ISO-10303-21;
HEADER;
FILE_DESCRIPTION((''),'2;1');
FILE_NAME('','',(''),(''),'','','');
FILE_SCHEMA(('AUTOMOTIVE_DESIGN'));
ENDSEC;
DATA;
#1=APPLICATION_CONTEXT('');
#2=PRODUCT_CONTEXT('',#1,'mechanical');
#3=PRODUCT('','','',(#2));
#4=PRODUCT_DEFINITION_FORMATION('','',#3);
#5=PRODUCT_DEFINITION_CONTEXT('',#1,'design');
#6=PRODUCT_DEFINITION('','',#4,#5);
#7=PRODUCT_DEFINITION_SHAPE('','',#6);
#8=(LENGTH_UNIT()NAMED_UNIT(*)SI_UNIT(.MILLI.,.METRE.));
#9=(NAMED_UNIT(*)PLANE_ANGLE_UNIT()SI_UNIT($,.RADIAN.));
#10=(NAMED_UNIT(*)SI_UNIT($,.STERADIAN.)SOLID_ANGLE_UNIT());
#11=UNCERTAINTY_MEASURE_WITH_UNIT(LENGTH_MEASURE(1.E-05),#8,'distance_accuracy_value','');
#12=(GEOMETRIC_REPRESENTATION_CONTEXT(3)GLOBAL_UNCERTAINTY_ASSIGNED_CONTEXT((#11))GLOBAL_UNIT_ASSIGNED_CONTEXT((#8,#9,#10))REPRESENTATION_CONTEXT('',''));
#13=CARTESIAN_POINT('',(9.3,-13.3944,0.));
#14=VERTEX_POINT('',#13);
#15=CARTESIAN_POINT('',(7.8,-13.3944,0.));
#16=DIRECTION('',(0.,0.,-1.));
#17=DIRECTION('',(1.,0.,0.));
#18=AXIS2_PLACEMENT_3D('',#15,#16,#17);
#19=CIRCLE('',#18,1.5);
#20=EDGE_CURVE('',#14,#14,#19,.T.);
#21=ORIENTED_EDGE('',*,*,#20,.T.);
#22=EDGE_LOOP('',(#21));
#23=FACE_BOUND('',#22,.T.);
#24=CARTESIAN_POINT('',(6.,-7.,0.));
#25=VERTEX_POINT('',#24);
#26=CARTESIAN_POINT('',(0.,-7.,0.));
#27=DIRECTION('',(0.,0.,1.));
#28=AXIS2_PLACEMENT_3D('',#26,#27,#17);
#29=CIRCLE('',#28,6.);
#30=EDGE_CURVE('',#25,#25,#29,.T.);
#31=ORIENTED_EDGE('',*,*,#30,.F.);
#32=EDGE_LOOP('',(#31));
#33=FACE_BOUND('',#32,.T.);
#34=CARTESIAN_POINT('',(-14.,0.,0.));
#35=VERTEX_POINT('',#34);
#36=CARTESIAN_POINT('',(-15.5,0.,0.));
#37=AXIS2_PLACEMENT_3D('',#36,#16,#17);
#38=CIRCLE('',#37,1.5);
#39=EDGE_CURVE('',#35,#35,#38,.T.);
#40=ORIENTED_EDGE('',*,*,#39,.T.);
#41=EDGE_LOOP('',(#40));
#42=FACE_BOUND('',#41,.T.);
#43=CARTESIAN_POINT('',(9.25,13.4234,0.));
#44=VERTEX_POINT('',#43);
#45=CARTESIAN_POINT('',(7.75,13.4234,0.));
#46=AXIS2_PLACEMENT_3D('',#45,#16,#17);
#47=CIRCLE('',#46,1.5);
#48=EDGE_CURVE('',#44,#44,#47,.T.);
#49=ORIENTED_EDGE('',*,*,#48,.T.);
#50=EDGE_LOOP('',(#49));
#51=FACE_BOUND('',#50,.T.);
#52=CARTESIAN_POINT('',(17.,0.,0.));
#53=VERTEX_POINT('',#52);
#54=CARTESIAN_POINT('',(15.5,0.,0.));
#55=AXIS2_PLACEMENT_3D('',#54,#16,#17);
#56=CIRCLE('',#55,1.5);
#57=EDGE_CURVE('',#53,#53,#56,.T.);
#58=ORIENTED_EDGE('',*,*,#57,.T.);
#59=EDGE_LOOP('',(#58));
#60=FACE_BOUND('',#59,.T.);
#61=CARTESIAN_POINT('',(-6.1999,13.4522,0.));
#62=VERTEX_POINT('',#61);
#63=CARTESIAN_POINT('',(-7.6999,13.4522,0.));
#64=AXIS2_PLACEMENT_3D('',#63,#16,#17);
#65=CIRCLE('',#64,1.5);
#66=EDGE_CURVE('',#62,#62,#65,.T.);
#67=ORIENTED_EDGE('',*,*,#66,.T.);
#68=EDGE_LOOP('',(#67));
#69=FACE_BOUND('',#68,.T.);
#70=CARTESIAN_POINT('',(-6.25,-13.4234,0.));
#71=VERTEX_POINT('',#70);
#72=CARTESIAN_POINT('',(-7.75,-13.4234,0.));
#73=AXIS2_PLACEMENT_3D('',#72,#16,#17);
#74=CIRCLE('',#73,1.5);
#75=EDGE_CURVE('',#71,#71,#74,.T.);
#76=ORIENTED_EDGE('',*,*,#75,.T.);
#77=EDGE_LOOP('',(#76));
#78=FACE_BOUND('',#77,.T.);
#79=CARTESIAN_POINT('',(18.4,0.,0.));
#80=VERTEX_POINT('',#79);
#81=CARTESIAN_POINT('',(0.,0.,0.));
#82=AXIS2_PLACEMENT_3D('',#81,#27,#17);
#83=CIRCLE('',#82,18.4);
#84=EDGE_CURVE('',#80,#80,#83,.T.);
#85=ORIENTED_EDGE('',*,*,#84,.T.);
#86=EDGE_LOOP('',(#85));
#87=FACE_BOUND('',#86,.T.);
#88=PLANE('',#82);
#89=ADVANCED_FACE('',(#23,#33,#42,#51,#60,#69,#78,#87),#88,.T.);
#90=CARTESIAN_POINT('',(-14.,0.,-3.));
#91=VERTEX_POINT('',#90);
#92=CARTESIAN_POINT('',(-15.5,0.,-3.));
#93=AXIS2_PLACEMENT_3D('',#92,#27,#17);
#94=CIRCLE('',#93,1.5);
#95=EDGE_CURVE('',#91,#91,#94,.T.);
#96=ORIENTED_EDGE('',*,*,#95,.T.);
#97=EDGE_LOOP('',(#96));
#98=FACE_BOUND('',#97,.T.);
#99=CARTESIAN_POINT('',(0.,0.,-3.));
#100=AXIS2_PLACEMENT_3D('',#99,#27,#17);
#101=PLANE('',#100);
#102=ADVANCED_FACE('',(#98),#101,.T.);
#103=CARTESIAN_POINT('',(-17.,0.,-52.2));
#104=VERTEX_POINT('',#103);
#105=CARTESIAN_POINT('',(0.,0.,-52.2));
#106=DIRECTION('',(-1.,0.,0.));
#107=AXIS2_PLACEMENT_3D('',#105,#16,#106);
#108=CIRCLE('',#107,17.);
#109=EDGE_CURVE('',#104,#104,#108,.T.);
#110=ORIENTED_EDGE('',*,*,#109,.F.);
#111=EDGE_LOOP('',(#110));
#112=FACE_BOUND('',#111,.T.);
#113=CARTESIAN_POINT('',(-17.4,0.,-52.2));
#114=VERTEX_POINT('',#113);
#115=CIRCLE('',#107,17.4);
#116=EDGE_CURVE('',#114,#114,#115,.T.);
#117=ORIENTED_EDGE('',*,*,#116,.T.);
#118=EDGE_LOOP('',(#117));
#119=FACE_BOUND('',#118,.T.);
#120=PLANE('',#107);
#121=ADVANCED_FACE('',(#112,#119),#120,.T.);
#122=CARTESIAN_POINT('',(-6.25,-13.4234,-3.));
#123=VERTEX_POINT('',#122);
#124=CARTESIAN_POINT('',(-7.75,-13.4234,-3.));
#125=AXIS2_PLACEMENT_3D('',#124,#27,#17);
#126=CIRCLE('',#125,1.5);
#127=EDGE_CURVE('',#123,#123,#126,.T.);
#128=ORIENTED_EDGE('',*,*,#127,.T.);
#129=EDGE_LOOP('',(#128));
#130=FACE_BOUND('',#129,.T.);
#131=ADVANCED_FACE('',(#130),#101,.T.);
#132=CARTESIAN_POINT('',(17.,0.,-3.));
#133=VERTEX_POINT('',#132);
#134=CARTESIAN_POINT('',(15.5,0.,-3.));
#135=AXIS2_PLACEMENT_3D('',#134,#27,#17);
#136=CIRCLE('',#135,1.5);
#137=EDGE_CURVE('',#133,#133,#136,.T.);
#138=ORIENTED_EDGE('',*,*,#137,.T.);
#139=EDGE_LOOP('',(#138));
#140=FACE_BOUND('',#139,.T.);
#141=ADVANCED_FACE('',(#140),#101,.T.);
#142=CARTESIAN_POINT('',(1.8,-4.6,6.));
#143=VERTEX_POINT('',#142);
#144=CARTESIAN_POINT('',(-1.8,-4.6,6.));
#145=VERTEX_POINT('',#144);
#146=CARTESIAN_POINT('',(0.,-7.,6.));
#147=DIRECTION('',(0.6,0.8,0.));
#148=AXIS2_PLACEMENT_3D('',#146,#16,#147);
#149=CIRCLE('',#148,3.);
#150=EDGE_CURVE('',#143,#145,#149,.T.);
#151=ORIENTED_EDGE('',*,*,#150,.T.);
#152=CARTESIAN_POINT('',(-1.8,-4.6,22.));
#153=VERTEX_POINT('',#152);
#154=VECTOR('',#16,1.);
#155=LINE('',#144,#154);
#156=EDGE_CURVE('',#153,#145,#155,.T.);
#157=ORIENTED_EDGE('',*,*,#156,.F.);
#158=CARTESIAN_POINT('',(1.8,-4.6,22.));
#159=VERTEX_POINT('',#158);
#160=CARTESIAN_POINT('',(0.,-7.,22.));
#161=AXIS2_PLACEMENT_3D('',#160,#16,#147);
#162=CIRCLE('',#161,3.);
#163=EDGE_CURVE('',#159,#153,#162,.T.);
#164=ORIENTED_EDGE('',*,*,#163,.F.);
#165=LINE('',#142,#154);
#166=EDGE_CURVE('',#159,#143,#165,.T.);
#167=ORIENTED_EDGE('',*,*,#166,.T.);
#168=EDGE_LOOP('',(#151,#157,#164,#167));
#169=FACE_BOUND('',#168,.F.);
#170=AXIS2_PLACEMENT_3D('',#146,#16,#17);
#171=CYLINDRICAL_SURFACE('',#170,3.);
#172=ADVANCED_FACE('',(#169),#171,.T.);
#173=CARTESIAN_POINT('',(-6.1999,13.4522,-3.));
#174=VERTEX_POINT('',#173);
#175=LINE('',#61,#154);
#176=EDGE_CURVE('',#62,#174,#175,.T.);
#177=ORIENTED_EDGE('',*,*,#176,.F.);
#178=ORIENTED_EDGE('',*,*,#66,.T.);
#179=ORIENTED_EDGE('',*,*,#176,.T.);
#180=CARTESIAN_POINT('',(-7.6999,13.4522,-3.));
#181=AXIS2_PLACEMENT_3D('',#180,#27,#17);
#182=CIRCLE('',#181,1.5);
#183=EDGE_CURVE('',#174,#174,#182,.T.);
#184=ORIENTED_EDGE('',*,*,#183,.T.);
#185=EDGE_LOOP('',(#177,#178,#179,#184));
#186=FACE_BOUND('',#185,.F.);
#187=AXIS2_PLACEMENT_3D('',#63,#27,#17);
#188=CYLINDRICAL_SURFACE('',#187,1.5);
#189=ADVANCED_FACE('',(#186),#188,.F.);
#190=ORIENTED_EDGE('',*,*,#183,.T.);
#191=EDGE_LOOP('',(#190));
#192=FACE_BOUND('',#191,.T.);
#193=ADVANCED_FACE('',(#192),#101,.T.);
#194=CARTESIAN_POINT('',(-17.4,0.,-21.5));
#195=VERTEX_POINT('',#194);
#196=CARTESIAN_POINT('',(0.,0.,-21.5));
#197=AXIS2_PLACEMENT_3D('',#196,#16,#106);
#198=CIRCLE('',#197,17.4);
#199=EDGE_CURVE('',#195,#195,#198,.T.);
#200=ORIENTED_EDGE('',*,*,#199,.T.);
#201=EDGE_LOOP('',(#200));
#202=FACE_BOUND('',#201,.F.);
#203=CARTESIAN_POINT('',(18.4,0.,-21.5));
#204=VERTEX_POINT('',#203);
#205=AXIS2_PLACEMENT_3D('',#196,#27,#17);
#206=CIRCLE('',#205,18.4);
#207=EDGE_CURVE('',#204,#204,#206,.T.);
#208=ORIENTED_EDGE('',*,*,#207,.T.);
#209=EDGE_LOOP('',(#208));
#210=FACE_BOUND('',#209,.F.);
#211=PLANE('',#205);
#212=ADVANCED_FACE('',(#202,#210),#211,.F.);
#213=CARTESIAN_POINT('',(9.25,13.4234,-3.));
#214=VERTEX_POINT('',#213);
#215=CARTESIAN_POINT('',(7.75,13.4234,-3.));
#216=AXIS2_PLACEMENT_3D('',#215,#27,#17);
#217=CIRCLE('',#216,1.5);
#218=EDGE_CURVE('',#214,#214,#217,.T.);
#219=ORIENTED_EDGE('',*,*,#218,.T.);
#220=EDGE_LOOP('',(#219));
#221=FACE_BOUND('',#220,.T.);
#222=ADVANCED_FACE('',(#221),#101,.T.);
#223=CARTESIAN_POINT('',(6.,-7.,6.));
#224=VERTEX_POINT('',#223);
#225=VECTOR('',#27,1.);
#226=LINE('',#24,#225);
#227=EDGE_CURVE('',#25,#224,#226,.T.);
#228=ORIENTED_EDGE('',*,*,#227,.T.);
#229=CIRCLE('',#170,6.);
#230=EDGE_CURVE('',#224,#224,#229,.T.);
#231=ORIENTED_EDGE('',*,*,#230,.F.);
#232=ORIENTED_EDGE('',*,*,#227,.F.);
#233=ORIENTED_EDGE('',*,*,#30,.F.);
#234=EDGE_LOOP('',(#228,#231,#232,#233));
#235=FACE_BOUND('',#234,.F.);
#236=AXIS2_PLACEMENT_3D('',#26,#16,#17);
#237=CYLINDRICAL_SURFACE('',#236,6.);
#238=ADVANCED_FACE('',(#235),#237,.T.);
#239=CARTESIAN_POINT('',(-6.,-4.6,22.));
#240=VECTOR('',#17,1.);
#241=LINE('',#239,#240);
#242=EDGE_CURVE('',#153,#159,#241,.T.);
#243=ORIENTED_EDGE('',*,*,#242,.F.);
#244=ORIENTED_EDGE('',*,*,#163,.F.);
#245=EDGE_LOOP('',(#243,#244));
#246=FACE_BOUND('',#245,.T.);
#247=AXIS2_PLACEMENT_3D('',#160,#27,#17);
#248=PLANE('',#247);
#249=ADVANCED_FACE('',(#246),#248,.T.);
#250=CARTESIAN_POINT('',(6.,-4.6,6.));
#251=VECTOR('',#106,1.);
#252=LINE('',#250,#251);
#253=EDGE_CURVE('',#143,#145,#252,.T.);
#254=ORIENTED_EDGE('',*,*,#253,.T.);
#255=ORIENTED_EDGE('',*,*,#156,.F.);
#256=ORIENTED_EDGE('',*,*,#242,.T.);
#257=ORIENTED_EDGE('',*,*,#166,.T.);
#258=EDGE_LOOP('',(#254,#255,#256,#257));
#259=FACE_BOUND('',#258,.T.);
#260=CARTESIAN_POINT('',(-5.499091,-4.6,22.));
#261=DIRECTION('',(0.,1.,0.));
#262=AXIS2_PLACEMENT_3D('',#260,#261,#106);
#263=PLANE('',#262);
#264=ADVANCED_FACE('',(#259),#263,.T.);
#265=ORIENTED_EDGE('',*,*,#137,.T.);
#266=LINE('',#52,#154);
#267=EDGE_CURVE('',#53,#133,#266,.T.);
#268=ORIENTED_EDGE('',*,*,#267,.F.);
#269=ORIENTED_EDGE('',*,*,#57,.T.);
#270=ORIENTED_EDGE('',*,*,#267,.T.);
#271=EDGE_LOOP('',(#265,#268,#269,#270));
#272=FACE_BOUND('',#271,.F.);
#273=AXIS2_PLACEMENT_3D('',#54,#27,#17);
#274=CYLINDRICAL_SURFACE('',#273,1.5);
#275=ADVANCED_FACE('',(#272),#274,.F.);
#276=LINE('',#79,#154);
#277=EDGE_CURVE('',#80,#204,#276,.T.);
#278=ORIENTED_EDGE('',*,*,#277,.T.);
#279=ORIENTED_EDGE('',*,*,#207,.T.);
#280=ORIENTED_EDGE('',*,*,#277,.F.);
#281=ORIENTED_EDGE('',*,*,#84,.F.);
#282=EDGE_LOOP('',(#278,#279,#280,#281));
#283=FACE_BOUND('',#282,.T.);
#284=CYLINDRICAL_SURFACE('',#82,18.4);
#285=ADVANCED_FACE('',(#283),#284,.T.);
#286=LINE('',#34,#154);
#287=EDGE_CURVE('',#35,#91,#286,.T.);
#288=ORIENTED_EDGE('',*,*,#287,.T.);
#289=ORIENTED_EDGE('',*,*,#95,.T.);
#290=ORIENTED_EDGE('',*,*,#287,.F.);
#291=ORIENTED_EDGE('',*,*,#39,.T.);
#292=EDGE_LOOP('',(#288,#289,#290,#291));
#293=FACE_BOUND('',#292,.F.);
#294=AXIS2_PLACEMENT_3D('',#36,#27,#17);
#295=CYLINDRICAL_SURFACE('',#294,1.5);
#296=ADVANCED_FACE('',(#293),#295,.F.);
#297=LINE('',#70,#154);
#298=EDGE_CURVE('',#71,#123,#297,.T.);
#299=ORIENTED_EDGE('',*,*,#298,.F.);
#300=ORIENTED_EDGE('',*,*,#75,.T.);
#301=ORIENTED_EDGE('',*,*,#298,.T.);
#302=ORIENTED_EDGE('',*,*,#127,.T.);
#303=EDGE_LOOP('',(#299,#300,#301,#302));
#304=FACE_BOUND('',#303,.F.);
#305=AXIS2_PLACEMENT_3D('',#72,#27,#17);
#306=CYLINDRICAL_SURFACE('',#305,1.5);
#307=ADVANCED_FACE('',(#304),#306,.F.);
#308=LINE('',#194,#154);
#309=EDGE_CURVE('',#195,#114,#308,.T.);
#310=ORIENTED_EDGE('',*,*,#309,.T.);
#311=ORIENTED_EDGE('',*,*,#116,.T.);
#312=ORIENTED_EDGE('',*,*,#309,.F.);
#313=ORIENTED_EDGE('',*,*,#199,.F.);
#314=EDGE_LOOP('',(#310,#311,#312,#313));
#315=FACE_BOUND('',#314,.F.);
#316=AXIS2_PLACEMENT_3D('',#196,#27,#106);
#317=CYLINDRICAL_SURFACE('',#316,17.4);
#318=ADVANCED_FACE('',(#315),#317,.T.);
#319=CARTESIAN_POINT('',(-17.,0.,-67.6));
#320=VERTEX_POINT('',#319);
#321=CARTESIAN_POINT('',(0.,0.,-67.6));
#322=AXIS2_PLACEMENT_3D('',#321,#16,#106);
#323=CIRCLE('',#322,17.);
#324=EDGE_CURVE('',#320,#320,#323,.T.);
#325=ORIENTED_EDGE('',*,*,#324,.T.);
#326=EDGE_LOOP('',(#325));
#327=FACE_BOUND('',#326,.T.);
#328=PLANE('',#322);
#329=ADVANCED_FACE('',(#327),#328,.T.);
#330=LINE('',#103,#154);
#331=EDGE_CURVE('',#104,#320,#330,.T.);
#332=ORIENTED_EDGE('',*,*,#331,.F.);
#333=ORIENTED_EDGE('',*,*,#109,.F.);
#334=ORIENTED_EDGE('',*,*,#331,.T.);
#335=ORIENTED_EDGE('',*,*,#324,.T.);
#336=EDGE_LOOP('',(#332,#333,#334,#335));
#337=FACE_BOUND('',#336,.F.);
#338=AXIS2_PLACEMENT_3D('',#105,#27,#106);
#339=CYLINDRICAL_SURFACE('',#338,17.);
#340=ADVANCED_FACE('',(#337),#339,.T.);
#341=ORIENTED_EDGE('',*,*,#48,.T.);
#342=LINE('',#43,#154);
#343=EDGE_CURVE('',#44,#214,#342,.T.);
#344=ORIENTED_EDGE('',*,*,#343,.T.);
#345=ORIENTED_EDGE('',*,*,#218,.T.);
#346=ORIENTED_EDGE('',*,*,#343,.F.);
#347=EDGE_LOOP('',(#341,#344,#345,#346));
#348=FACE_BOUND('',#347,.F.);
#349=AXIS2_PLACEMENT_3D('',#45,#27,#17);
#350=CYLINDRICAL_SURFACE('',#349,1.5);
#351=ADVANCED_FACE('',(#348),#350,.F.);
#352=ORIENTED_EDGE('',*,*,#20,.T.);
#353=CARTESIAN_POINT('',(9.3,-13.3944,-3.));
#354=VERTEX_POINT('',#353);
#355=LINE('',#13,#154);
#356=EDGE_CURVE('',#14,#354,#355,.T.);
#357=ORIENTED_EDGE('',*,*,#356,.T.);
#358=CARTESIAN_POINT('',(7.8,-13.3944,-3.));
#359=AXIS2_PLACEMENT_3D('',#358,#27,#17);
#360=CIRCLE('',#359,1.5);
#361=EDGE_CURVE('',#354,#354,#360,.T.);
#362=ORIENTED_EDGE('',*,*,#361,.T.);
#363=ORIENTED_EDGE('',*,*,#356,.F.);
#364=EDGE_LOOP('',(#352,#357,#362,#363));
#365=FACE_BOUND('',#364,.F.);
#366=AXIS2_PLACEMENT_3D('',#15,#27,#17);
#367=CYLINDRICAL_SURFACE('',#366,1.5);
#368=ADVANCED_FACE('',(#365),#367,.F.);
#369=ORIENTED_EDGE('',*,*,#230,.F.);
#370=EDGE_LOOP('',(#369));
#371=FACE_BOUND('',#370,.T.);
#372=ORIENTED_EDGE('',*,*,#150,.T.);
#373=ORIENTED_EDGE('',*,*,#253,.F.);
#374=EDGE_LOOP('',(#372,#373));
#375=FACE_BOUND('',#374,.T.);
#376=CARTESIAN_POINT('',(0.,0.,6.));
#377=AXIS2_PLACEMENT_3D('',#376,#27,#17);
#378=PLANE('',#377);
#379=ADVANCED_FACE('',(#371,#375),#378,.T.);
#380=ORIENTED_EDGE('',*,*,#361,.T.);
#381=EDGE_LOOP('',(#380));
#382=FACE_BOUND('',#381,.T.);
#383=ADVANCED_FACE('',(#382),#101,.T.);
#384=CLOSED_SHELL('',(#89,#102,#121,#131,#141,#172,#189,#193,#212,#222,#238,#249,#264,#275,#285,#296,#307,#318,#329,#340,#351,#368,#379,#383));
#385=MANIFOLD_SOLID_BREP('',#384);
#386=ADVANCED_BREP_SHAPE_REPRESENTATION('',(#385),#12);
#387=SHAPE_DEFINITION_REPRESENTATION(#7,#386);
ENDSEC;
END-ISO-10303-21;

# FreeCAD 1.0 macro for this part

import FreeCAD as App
import Part
import Sketcher
from FreeCAD import Vector
Q = App.Units.Quantity

doc = App.newDocument("Part")
body = doc.addObject("PartDesign::Body", "Body")

# Sketch on XY plane
sketch1 = doc.addObject("Sketcher::SketchObject", "Sketch")
body.addObject(sketch1)
sketch1.AttachmentSupport = (doc.XY_Plane, [""])
sketch1.MapMode = "FlatFace"
sketch1.addGeometry(Part.Circle(Vector(0, 0, 0), Vector(0, 0, 1), 18), False)
sketch1.addConstraint(Sketcher.Constraint("Coincident", 0, 3, -1, 1))
sketch1.addConstraint(Sketcher.Constraint("Diameter", 0, Q("36.8 mm")))
pad1 = doc.addObject("PartDesign::Pad", "Pad")
body.addObject(pad1)
pad1.Profile = sketch1
pad1.Length = 21.5
pad1.Reversed = True

# Sketch on XY plane
sketch2 = doc.addObject("Sketcher::SketchObject", "Sketch001")
body.addObject(sketch2)
sketch2.AttachmentSupport = (doc.XY_Plane, [""])
sketch2.MapMode = "FlatFace"
sketch2.AttachmentOffset = App.Placement(Vector(0, 0, -21.5), App.Rotation())
sketch2.addGeometry(Part.Circle(Vector(0, 0, 0), Vector(0, 0, 1), 17), False)
sketch2.addConstraint(Sketcher.Constraint("Coincident", 0, 3, -1, 1))
sketch2.addConstraint(Sketcher.Constraint("Diameter", 0, Q("34.8 mm")))
pad2 = doc.addObject("PartDesign::Pad", "Pad001")
body.addObject(pad2)
pad2.Profile = sketch2
pad2.Length = 30.7
pad2.Reversed = True

# Sketch on XY plane
sketch3 = doc.addObject("Sketcher::SketchObject", "Sketch002")
body.addObject(sketch3)
sketch3.AttachmentSupport = (doc.XY_Plane, [""])
sketch3.MapMode = "FlatFace"
sketch3.AttachmentOffset = App.Placement(Vector(0, 0, -52.2), App.Rotation())
sketch3.addGeometry(Part.Circle(Vector(0, 0, 0), Vector(0, 0, 1), 17), False)
sketch3.addConstraint(Sketcher.Constraint("Coincident", 0, 3, -1, 1))
sketch3.addConstraint(Sketcher.Constraint("Diameter", 0, Q("34 mm")))
pad3 = doc.addObject("PartDesign::Pad", "Pad002")
body.addObject(pad3)
pad3.Profile = sketch3
pad3.Length = 15.4
pad3.Reversed = True

# Sketch on XY plane
sketch4 = doc.addObject("Sketcher::SketchObject", "Sketch003")
body.addObject(sketch4)
sketch4.AttachmentSupport = (doc.XY_Plane, [""])
sketch4.MapMode = "FlatFace"
sketch4.addGeometry(Part.Circle(Vector(0, -7, 0), Vector(0, 0, 1), 6), False)
sketch4.addConstraint(Sketcher.Constraint("PointOnObject", 0, 3, -2))
sketch4.addConstraint(Sketcher.Constraint("Diameter", 0, Q("12 mm")))
sketch4.addConstraint(Sketcher.Constraint("DistanceY", 0, 3, -1, 1, Q("7 mm")))
pad4 = doc.addObject("PartDesign::Pad", "Pad003")
body.addObject(pad4)
pad4.Profile = sketch4
pad4.Length = 6

# Sketch on XY plane
sketch5 = doc.addObject("Sketcher::SketchObject", "Sketch004")
body.addObject(sketch5)
sketch5.AttachmentSupport = (doc.XY_Plane, [""])
sketch5.MapMode = "FlatFace"
sketch5.addGeometry(Part.Circle(Vector(-15.5, 0, 0), Vector(0, 0, 1), 1.5), False)
sketch5.addGeometry(Part.Circle(Vector(-7.7, 13.5, 0), Vector(0, 0, 1), 1.5), False)
sketch5.addGeometry(Part.Circle(Vector(-7.8, -13.4, 0), Vector(0, 0, 1), 1.5), False)
sketch5.addGeometry(Part.Circle(Vector(15.5, 0, 0), Vector(0, 0, 1), 1.5), False)
sketch5.addGeometry(Part.Circle(Vector(7.8, 13.4, 0), Vector(0, 0, 1), 1.5), False)
sketch5.addGeometry(Part.Circle(Vector(7.8, -13.4, 0), Vector(0, 0, 1), 1.5), False)
sketch5.addConstraint(Sketcher.Constraint("Equal", 0, 1))
sketch5.addConstraint(Sketcher.Constraint("Equal", 1, 2))
sketch5.addConstraint(Sketcher.Constraint("Equal", 2, 3))
sketch5.addConstraint(Sketcher.Constraint("Equal", 3, 4))
sketch5.addConstraint(Sketcher.Constraint("Equal", 4, 5))
sketch5.addConstraint(Sketcher.Constraint("Symmetric", 0, 3, 3, 3, -1, 1))
sketch5.addConstraint(Sketcher.Constraint("Symmetric", 2, 3, 4, 3, -1, 1))
sketch5.addConstraint(Sketcher.Constraint("PointOnObject", 0, 3, -1))
sketch5.addConstraint(Sketcher.Constraint("Diameter", 0, Q("3 mm")))
sketch5.addConstraint(Sketcher.Constraint("DistanceX", 0, 3, 3, 3, Q("31 mm")))
sketch5.addConstraint(Sketcher.Constraint("DistanceX", 1, 3, -1, 1, Q("7.7 mm")))
sketch5.addConstraint(Sketcher.Constraint("DistanceX", -1, 1, 5, 3, Q("7.8 mm")))
sketch5.addConstraint(Sketcher.Constraint("DistanceX", 2, 3, 4, 3, Q("15.5 mm")))
sketch5.addConstraint(Sketcher.Constraint("DistanceY", 2, 3, 5, 3, Q("0.029 mm")))
sketch5.addConstraint(Sketcher.Constraint("DistanceY", -1, 1, 1, 3, Q("13.4522 mm")))
sketch5.addConstraint(Sketcher.Constraint("DistanceY", 2, 3, -1, 1, Q("13.4234 mm")))
pocket1 = doc.addObject("PartDesign::Pocket", "Pocket")
body.addObject(pocket1)
pocket1.Profile = sketch5
pocket1.Length = 3

# Sketch on XY plane
sketch6 = doc.addObject("Sketcher::SketchObject", "Sketch005")
body.addObject(sketch6)
sketch6.AttachmentSupport = (doc.XY_Plane, [""])
sketch6.MapMode = "FlatFace"
sketch6.AttachmentOffset = App.Placement(Vector(0, 0, 6), App.Rotation())
sketch6.addGeometry(Part.Circle(Vector(0, -7, 0), Vector(0, 0, 1), 3), False)
sketch6.addConstraint(Sketcher.Constraint("PointOnObject", 0, 3, -2))
sketch6.addConstraint(Sketcher.Constraint("Diameter", 0, Q("6 mm")))
sketch6.addConstraint(Sketcher.Constraint("DistanceY", 0, 3, -1, 1, Q("7 mm")))
pad5 = doc.addObject("PartDesign::Pad", "Pad004")
body.addObject(pad5)
pad5.Profile = sketch6
pad5.Length = 16

# Sketch on XY plane
sketch7 = doc.addObject("Sketcher::SketchObject", "Sketch006")
body.addObject(sketch7)
sketch7.AttachmentSupport = (doc.XY_Plane, [""])
sketch7.MapMode = "FlatFace"
sketch7.AttachmentOffset = App.Placement(Vector(0, 0, 22), App.Rotation())
sketch7.addGeometry(Part.LineSegment(Vector(-6, -4, 0), Vector(-6, -4.6, 0)), False)
sketch7.addGeometry(Part.LineSegment(Vector(-6, -4.6, 0), Vector(6, -4.6, 0)), False)
sketch7.addGeometry(Part.LineSegment(Vector(6, -4.6, 0), Vector(6, -4, 0)), False)
sketch7.addGeometry(Part.LineSegment(Vector(6, -4, 0), Vector(-6, -4, 0)), False)
sketch7.addConstraint(Sketcher.Constraint("Coincident", 0, 2, 1, 1))
sketch7.addConstraint(Sketcher.Constraint("Coincident", 1, 2, 2, 1))
sketch7.addConstraint(Sketcher.Constraint("Coincident", 2, 2, 3, 1))
sketch7.addConstraint(Sketcher.Constraint("Coincident", 3, 2, 0, 1))
sketch7.addConstraint(Sketcher.Constraint("Vertical", 0))
sketch7.addConstraint(Sketcher.Constraint("Horizontal", 1))
sketch7.addConstraint(Sketcher.Constraint("Vertical", 2))
sketch7.addConstraint(Sketcher.Constraint("Horizontal", 3))
sketch7.addConstraint(Sketcher.Constraint("DistanceY", 0, 2, 0, 1, Q("0.6 mm")))
sketch7.addConstraint(Sketcher.Constraint("DistanceX", 1, 1, 1, 2, Q("12 mm")))
sketch7.addConstraint(Sketcher.Constraint("DistanceX", 0, 2, -1, 1, Q("6 mm")))
sketch7.addConstraint(Sketcher.Constraint("DistanceY", 2, 2, -1, 1, Q("4 mm")))
pocket2 = doc.addObject("PartDesign::Pocket", "Pocket001")
body.addObject(pocket2)
pocket2.Profile = sketch7
pocket2.Length = 16

doc.recompute()
